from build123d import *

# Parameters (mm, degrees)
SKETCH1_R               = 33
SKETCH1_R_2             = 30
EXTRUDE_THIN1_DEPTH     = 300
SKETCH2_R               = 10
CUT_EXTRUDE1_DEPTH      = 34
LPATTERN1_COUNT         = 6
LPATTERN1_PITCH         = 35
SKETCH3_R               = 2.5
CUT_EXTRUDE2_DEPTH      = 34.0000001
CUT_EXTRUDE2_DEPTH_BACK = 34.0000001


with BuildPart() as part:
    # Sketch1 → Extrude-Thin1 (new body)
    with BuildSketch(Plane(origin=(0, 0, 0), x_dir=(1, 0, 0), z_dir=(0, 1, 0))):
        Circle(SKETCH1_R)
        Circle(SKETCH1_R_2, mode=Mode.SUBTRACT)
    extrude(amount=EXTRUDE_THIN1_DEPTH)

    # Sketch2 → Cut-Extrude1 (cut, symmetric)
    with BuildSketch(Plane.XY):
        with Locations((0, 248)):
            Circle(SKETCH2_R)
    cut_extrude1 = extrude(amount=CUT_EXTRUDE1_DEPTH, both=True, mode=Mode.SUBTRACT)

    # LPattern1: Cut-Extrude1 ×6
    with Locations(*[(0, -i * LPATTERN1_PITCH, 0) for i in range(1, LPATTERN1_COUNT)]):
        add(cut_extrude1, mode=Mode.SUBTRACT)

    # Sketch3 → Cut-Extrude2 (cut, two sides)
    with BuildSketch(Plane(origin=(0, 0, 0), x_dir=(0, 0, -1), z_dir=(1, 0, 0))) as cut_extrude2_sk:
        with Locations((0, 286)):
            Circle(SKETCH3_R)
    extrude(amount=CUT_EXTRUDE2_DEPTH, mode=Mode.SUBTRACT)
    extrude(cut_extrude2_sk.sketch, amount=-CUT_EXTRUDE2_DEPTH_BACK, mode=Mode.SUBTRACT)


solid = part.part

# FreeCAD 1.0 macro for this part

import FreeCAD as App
import Part
import Sketcher
from FreeCAD import Vector
Q = App.Units.Quantity

doc = App.newDocument("Part")
body = doc.addObject("PartDesign::Body", "Body")

# Sketch on XZ plane
sketch1 = doc.addObject("Sketcher::SketchObject", "Sketch")
body.addObject(sketch1)
sketch1.AttachmentSupport = (doc.XZ_Plane, [""])
sketch1.MapMode = "FlatFace"
sketch1.addGeometry([
    Part.Circle(Vector(0, 0, 0), Vector(0, 0, 1), 33),
    Part.Circle(Vector(0, 0, 0), Vector(0, 0, 1), 30),
], False)
sketch1.addConstraint([
    Sketcher.Constraint("Coincident", 0, 3, -1, 1),
    Sketcher.Constraint("Coincident", 1, 3, -1, 1),
    Sketcher.Constraint("Diameter", 0, Q("66 mm")),
    Sketcher.Constraint("Diameter", 1, Q("60 mm")),
])
pad1 = doc.addObject("PartDesign::Pad", "Pad")
body.addObject(pad1)
pad1.Profile = sketch1
pad1.Length = 300
pad1.Reversed = True

# Sketch on XY plane
sketch2 = doc.addObject("Sketcher::SketchObject", "Sketch001")
body.addObject(sketch2)
sketch2.AttachmentSupport = (doc.XY_Plane, [""])
sketch2.MapMode = "FlatFace"
sketch2.addGeometry(Part.Circle(Vector(0, 248, 0), Vector(0, 0, 1), 10), False)
sketch2.addConstraint([
    Sketcher.Constraint("PointOnObject", 0, 3, -2),
    Sketcher.Constraint("Diameter", 0, Q("20 mm")),
    Sketcher.Constraint("DistanceY", -1, 1, 0, 3, Q("248 mm")),
])
pocket1 = doc.addObject("PartDesign::Pocket", "Pocket")
body.addObject(pocket1)
pocket1.Profile = sketch2
pocket1.Length = 68
pocket1.Midplane = True
doc.recompute()

linearpattern = doc.addObject("PartDesign::LinearPattern", "LinearPattern")
body.addObject(linearpattern)
linearpattern.Originals = [pocket1]
linearpattern.Direction = (doc.Y_Axis, [""])
linearpattern.Mode = "offset"
linearpattern.Offset = 35
linearpattern.Occurrences = 6
linearpattern.Reversed = True
body.Tip = linearpattern

# Sketch on YZ plane
sketch3 = doc.addObject("Sketcher::SketchObject", "Sketch002")
body.addObject(sketch3)
sketch3.AttachmentSupport = (doc.YZ_Plane, [""])
sketch3.MapMode = "FlatFace"
sketch3.addGeometry(Part.Circle(Vector(286, 0, 0), Vector(0, 0, 1), 2.5), False)
sketch3.addConstraint([
    Sketcher.Constraint("PointOnObject", 0, 3, -1),
    Sketcher.Constraint("Diameter", 0, Q("5 mm")),
    Sketcher.Constraint("DistanceX", -1, 1, 0, 3, Q("286 mm")),
])
pocket2 = doc.addObject("PartDesign::Pocket", "Pocket001")
body.addObject(pocket2)
pocket2.Profile = sketch3
pocket2.Type = "ThroughAll"
pocket2.Midplane = True

doc.recompute()
